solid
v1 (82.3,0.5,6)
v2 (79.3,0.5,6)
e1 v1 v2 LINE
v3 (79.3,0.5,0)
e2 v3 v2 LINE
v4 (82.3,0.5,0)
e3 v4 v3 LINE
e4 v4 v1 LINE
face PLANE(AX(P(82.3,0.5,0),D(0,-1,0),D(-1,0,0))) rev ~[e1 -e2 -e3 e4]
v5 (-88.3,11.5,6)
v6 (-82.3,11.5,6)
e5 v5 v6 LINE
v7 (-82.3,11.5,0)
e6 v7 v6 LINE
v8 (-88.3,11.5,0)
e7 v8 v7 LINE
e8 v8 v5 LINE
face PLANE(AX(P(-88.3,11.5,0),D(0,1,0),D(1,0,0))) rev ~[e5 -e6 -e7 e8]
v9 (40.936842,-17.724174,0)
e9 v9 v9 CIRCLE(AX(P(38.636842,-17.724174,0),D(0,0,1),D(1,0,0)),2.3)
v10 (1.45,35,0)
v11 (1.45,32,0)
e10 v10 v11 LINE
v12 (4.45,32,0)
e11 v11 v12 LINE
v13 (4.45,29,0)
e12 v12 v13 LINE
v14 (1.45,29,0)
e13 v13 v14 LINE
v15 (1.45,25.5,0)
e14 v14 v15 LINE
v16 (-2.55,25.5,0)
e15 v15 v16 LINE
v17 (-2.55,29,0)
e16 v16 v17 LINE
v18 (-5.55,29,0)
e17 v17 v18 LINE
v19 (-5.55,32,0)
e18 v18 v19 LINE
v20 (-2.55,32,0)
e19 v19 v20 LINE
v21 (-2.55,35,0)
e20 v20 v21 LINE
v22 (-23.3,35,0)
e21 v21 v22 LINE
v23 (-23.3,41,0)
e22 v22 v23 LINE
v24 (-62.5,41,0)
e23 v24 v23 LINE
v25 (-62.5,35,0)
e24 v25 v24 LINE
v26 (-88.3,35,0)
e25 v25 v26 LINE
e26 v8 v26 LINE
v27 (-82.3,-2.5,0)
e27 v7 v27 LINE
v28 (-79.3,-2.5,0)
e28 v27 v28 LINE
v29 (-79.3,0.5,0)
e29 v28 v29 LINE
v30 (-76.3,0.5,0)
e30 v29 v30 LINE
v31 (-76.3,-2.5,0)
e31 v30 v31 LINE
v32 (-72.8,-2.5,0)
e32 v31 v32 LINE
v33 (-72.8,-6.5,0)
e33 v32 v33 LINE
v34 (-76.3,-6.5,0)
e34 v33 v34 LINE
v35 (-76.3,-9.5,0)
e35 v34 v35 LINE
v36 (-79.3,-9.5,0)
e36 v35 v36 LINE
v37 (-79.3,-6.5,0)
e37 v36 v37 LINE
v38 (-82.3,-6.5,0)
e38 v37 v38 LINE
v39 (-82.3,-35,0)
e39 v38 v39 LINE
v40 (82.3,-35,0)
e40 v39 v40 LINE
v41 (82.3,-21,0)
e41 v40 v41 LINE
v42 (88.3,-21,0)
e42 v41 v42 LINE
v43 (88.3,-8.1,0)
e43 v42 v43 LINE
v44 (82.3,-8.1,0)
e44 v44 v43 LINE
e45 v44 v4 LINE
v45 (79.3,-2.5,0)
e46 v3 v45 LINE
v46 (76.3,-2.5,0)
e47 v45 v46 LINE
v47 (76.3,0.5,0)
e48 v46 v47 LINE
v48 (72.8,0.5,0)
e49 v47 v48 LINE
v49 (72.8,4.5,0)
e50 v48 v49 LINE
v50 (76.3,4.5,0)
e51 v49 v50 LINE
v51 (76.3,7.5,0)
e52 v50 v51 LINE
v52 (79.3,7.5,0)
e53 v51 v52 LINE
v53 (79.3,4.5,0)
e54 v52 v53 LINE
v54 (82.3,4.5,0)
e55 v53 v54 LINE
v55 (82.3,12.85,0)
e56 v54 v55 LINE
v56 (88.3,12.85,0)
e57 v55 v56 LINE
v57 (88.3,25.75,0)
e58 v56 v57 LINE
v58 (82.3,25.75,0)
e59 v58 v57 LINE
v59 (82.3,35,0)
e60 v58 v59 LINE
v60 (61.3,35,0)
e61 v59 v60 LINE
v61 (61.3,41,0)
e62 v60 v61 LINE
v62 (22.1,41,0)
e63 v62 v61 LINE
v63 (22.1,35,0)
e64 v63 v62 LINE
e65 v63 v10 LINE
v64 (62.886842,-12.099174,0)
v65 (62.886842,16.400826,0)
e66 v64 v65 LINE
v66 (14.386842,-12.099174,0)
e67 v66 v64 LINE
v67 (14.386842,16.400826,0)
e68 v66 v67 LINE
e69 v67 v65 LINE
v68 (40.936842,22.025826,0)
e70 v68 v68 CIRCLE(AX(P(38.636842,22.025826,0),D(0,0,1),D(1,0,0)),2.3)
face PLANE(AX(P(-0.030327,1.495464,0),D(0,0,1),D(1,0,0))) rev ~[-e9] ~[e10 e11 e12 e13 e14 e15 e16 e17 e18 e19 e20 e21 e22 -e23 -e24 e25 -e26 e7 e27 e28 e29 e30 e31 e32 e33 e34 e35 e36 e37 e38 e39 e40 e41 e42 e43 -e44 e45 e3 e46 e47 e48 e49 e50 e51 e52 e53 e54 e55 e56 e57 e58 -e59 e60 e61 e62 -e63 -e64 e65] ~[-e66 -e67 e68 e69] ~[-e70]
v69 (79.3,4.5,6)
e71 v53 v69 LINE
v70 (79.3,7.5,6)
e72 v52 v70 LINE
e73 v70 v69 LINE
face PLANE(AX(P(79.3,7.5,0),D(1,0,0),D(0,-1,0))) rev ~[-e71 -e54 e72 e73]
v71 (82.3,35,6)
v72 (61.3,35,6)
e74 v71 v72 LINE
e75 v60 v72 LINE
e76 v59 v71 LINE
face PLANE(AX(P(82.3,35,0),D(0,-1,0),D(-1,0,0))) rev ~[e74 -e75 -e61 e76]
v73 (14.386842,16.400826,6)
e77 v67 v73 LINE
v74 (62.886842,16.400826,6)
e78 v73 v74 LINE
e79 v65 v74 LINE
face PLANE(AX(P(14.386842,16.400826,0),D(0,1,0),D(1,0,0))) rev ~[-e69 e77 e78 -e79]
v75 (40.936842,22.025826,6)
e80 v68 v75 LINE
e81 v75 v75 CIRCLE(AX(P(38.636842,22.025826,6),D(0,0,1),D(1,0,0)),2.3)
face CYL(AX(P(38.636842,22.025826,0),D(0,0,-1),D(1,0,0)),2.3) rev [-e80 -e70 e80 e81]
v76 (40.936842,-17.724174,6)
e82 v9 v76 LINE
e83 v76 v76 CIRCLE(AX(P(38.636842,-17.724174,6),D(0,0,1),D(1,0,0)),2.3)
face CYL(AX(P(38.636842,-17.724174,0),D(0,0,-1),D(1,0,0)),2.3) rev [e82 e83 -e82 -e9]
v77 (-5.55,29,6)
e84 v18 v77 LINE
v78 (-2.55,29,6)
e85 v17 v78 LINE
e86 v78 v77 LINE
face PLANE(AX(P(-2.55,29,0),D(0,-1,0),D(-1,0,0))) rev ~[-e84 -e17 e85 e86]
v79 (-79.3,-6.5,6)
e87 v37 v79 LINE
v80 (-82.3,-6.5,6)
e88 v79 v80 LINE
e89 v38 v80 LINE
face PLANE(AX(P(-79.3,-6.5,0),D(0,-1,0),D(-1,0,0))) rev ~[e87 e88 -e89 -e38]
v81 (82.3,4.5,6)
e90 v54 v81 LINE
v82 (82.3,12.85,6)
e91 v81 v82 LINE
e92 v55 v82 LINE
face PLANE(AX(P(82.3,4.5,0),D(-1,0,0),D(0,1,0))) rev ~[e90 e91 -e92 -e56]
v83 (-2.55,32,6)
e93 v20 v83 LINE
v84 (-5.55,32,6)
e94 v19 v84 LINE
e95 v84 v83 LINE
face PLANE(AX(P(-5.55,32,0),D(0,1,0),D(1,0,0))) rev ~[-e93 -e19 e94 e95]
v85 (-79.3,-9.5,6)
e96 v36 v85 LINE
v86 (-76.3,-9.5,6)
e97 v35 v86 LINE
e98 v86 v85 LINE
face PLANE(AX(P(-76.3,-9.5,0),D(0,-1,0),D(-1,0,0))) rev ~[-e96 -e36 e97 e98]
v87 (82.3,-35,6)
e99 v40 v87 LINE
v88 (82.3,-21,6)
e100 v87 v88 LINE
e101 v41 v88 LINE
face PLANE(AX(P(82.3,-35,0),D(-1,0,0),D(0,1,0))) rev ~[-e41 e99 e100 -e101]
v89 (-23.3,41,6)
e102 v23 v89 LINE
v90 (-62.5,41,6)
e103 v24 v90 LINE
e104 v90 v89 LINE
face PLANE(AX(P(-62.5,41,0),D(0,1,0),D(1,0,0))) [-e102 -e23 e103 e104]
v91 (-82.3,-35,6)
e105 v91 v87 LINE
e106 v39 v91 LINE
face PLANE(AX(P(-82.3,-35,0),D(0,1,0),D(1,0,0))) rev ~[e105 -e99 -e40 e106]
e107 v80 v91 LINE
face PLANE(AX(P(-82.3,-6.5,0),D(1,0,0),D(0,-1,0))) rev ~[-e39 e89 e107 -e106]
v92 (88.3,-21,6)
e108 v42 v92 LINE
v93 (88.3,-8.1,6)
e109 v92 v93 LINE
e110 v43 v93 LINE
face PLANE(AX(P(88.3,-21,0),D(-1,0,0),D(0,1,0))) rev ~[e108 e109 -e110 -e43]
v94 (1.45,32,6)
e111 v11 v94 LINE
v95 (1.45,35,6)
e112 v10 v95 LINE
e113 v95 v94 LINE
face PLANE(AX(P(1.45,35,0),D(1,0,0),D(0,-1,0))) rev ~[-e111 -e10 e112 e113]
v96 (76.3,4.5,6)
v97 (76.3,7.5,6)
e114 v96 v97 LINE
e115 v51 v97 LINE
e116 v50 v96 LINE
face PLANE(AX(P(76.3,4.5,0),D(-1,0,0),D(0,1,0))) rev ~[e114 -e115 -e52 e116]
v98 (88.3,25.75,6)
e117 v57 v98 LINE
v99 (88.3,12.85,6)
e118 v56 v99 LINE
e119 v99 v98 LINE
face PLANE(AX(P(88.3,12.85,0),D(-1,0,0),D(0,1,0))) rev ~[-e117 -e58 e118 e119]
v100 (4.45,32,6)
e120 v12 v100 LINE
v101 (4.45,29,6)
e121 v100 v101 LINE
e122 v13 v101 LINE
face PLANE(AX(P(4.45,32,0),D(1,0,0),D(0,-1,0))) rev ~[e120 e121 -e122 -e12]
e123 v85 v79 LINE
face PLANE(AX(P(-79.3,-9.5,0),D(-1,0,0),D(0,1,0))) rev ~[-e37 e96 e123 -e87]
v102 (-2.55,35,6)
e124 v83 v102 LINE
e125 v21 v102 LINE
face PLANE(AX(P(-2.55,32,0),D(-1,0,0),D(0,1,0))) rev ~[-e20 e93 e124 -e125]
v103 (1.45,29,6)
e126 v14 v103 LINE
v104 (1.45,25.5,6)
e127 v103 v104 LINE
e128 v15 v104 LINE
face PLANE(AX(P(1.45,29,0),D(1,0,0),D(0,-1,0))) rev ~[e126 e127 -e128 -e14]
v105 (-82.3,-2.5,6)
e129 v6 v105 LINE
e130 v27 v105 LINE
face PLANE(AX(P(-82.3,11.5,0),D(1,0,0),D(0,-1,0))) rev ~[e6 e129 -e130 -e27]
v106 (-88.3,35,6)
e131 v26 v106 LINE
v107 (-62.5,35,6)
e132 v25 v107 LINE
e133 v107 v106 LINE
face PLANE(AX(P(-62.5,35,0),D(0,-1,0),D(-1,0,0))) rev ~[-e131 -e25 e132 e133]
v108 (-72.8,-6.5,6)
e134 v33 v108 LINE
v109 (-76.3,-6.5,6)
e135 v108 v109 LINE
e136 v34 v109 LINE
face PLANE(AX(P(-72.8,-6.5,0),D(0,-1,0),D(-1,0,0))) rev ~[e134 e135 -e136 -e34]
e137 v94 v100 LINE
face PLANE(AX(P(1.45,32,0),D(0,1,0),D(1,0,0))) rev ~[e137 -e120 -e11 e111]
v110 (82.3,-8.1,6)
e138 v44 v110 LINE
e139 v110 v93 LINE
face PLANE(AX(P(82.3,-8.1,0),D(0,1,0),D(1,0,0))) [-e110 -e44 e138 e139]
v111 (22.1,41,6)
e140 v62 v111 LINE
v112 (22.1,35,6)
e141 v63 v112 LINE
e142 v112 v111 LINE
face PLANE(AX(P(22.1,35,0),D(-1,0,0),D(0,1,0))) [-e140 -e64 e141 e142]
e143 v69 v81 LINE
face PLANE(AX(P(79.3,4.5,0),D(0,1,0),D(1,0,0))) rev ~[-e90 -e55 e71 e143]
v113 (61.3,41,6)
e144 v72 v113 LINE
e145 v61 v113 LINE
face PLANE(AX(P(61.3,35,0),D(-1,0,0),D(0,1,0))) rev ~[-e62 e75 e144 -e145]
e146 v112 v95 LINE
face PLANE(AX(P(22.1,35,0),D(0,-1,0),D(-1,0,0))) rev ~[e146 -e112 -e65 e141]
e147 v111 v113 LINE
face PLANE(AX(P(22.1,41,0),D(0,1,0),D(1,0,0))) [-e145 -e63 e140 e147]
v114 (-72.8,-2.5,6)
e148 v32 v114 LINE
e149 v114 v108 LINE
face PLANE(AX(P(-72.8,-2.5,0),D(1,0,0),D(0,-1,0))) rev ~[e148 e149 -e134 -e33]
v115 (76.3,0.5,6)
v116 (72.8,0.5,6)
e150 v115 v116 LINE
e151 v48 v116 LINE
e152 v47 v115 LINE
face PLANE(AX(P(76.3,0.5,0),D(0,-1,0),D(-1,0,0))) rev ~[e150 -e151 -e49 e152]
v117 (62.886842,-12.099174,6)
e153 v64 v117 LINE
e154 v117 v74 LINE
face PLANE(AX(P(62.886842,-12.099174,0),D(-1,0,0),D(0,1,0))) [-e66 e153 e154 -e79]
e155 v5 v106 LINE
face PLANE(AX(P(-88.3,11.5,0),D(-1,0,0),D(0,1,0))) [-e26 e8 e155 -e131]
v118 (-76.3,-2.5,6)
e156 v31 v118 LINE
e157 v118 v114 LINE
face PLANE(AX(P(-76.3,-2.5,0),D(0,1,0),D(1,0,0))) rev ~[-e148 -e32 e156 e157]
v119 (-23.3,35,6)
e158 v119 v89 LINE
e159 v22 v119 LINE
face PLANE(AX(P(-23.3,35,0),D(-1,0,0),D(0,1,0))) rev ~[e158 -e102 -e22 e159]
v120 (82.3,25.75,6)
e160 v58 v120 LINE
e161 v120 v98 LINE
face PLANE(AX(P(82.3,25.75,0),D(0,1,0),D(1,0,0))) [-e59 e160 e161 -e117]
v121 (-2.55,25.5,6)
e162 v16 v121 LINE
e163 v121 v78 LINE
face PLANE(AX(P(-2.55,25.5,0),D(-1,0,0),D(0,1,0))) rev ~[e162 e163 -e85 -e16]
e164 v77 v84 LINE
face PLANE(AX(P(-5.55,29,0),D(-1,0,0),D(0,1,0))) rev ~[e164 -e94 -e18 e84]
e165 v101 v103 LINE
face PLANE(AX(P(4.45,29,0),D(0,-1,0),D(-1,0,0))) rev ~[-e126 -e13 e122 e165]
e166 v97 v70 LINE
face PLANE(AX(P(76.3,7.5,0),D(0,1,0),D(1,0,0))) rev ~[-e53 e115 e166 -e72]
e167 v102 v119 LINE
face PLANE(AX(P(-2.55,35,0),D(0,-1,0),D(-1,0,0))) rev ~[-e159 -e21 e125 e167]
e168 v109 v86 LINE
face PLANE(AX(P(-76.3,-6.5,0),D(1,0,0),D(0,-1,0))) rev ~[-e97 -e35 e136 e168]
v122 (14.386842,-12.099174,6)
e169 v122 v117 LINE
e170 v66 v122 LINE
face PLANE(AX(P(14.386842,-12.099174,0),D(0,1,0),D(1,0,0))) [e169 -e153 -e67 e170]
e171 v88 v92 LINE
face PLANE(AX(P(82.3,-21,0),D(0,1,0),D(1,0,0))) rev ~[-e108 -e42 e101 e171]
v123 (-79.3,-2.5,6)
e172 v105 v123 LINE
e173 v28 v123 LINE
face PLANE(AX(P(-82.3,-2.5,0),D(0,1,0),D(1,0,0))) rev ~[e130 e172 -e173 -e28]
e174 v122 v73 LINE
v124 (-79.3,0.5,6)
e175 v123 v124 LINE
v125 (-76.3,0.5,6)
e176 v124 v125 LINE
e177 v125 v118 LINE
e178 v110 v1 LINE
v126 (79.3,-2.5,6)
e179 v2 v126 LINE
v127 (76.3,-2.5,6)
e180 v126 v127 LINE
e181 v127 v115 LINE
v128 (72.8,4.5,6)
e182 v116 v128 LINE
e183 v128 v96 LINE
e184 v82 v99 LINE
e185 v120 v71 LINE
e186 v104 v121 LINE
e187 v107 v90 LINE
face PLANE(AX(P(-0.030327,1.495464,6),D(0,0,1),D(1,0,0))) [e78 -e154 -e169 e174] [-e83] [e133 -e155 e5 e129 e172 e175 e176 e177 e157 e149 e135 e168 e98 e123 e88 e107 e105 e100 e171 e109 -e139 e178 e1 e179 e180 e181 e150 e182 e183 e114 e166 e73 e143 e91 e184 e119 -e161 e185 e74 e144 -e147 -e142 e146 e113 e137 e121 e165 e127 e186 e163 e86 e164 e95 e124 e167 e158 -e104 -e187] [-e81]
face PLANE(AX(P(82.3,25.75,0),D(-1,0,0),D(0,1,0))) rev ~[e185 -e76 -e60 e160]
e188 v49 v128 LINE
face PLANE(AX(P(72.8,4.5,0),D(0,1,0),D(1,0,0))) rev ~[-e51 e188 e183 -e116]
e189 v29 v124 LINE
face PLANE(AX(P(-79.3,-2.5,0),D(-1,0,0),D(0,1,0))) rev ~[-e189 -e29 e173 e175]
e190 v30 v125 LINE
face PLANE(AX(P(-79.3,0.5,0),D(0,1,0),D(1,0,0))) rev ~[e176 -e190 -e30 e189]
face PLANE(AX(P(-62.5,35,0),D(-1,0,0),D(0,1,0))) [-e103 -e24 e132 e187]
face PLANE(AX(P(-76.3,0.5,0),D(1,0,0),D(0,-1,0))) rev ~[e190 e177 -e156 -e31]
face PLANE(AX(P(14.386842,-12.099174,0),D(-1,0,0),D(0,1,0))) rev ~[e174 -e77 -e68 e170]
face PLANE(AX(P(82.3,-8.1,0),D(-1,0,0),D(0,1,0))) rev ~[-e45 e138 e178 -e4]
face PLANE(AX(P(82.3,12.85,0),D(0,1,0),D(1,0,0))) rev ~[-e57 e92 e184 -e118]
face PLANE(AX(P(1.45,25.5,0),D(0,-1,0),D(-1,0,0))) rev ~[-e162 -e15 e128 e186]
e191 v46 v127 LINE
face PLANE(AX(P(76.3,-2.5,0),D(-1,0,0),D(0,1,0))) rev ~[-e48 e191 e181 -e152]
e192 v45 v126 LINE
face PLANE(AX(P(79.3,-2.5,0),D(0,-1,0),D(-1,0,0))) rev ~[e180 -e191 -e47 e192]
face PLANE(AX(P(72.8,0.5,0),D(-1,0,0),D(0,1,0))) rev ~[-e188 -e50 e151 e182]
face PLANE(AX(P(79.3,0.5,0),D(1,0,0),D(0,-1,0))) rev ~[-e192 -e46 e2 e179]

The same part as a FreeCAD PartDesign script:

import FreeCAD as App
import Part
import Sketcher

V = App.Vector
Q = App.Units.Quantity


def add_polygon(sketch, points):
    """Adds a closed chain of lines whose ends are joined by coincident constraints."""
    first, n = sketch.GeometryCount, len(points)
    for a, b in zip(points, points[1:] + points[:1]):
        sketch.addGeometry(Part.LineSegment(App.Vector(*a, 0), App.Vector(*b, 0)), False)
    for i in range(n):
        sketch.addConstraint(Sketcher.Constraint("Coincident", first + i, 2, first + (i + 1) % n, 1))

doc = App.newDocument("Part")
body = doc.addObject("PartDesign::Body", "Body")

sketch1 = body.newObject("Sketcher::SketchObject", "Sketch")
sketch1.AttachmentSupport = (doc.getObject("XY_Plane"), [""])
sketch1.MapMode = "FlatFace"
add_polygon(sketch1, [(-82.3, 11.5), (-82.3, -2.5), (-79.3, -2.5), (-79.3, 0.5), (-76.3, 0.5), (-76.3, -2.5), (-72.8, -2.5), (-72.8, -6.5), (-76.3, -6.5), (-76.3, -9.5), (-79.3, -9.5), (-79.3, -6.5), (-82.3, -6.5), (-82.3, -35), (82.3, -35), (82.3, -21), (88.3, -21), (88.3, -8.1), (82.3, -8.1), (82.3, 0.5), (79.3, 0.5), (79.3, -2.5), (76.3, -2.5), (76.3, 0.5), (72.8, 0.5), (72.8, 4.5), (76.3, 4.5), (76.3, 7.5), (79.3, 7.5), (79.3, 4.5), (82.3, 4.5), (82.3, 12.8), (88.3, 12.8), (88.3, 25.8), (82.3, 25.8), (82.3, 35), (61.3, 35), (61.3, 41), (22.1, 41), (22.1, 35), (1.4, 35), (1.4, 32), (4.5, 32), (4.5, 29), (1.4, 29), (1.4, 25.5), (-2.5, 25.5), (-2.5, 29), (-5.5, 29), (-5.5, 32), (-2.5, 32), (-2.5, 35), (-23.3, 35), (-23.3, 41), (-62.5, 41), (-62.5, 35), (-88.3, 35), (-88.3, 11.5)])
sketch1.addGeometry(Part.Circle(V(38.6, -17.7, 0), V(0, 0, 1), 2.3), False)
add_polygon(sketch1, [(62.9, -12.1), (14.4, -12.1), (14.4, 16.4), (62.9, 16.4)])
sketch1.addGeometry(Part.Circle(V(38.6, 22, 0), V(0, 0, 1), 2.3), False)
sketch1.addConstraint([
    Sketcher.Constraint("Vertical", 0),
    Sketcher.Constraint("Horizontal", 1),
    Sketcher.Constraint("Vertical", 2),
    Sketcher.Constraint("Horizontal", 3),
    Sketcher.Constraint("Vertical", 4),
    Sketcher.Constraint("Horizontal", 5),
    Sketcher.Constraint("Vertical", 6),
    Sketcher.Constraint("Horizontal", 7),
    Sketcher.Constraint("Vertical", 8),
    Sketcher.Constraint("Horizontal", 9),
    Sketcher.Constraint("Vertical", 10),
    Sketcher.Constraint("Horizontal", 11),
    Sketcher.Constraint("Vertical", 12),
    Sketcher.Constraint("Horizontal", 13),
    Sketcher.Constraint("Vertical", 14),
    Sketcher.Constraint("Horizontal", 15),
    Sketcher.Constraint("Vertical", 16),
    Sketcher.Constraint("Horizontal", 17),
    Sketcher.Constraint("Vertical", 18),
    Sketcher.Constraint("Horizontal", 19),
    Sketcher.Constraint("Vertical", 20),
    Sketcher.Constraint("Horizontal", 21),
    Sketcher.Constraint("Vertical", 22),
    Sketcher.Constraint("Horizontal", 23),
    Sketcher.Constraint("Vertical", 24),
    Sketcher.Constraint("Horizontal", 25),
    Sketcher.Constraint("Vertical", 26),
    Sketcher.Constraint("Horizontal", 27),
    Sketcher.Constraint("Vertical", 28),
    Sketcher.Constraint("Horizontal", 29),
    Sketcher.Constraint("Vertical", 30),
    Sketcher.Constraint("Horizontal", 31),
    Sketcher.Constraint("Vertical", 32),
    Sketcher.Constraint("Horizontal", 33),
    Sketcher.Constraint("Vertical", 34),
    Sketcher.Constraint("Horizontal", 35),
    Sketcher.Constraint("Vertical", 36),
    Sketcher.Constraint("Horizontal", 37),
    Sketcher.Constraint("Vertical", 38),
    Sketcher.Constraint("Horizontal", 39),
    Sketcher.Constraint("Vertical", 40),
    Sketcher.Constraint("Horizontal", 41),
    Sketcher.Constraint("Vertical", 42),
    Sketcher.Constraint("Horizontal", 43),
    Sketcher.Constraint("Vertical", 44),
    Sketcher.Constraint("Horizontal", 45),
    Sketcher.Constraint("Vertical", 46),
    Sketcher.Constraint("Horizontal", 47),
    Sketcher.Constraint("Vertical", 48),
    Sketcher.Constraint("Horizontal", 49),
    Sketcher.Constraint("Vertical", 50),
    Sketcher.Constraint("Horizontal", 51),
    Sketcher.Constraint("Vertical", 52),
    Sketcher.Constraint("Horizontal", 53),
    Sketcher.Constraint("Vertical", 54),
    Sketcher.Constraint("Horizontal", 55),
    Sketcher.Constraint("Vertical", 56),
    Sketcher.Constraint("Horizontal", 57),
    Sketcher.Constraint("Horizontal", 59),
    Sketcher.Constraint("Vertical", 60),
    Sketcher.Constraint("Horizontal", 61),
    Sketcher.Constraint("Vertical", 62),
    Sketcher.Constraint("Equal", 58, 63),
    Sketcher.Constraint("Symmetric", 12, 2, 34, 2, -1, 1),
    Sketcher.Constraint("Symmetric", 2, 2, 19, 2, -2),
    Sketcher.Constraint("Symmetric", 4, 2, 21, 2, -2),
    Sketcher.Constraint("Horizontal", 1, 2, 4, 2),
    Sketcher.Constraint("Horizontal", 7, 2, 10, 2),
    Sketcher.Constraint("Horizontal", 19, 2, 22, 2),
    Sketcher.Constraint("Horizontal", 25, 2, 28, 2),
    Sketcher.Constraint("Horizontal", 35, 2, 38, 2),
    Sketcher.Constraint("Horizontal", 43, 2, 46, 2),
    Sketcher.Constraint("Horizontal", 41, 2, 48, 2),
    Sketcher.Constraint("Horizontal", 39, 2, 50, 2),
    Sketcher.Constraint("Horizontal", 37, 2, 52, 2),
    Sketcher.Constraint("Horizontal", 51, 2, 54, 2),
    Sketcher.Constraint("Vertical", 58, 3, 63, 3),
    Sketcher.Constraint("Vertical", 4, 2, 7, 2),
    Sketcher.Constraint("Vertical", 2, 2, 9, 2),
    Sketcher.Constraint("Vertical", 0, 2, 11, 2),
    Sketcher.Constraint("Vertical", 14, 2, 17, 2),
    Sketcher.Constraint("Vertical", 22, 2, 25, 2),
    Sketcher.Constraint("Vertical", 20, 2, 27, 2),
    Sketcher.Constraint("Vertical", 18, 2, 29, 2),
    Sketcher.Constraint("Vertical", 16, 2, 31, 2),
    Sketcher.Constraint("Vertical", 30, 2, 33, 2),
    Sketcher.Constraint("Vertical", 40, 2, 43, 2),
    Sketcher.Constraint("Vertical", 46, 2, 49, 2),
    Sketcher.Constraint("Equal", 1, 3),
    Sketcher.Constraint("Equal", 7, 23),
    Sketcher.Constraint("Equal", 29, 41),
    Sketcher.Constraint("Equal", 43, 47),
    Sketcher.Constraint("Equal", 37, 53),
    Sketcher.Constraint("Equal", 33, 57),
    Sketcher.Constraint("Equal", 49, 2),
    Sketcher.Constraint("Equal", 45, 6),
    Sketcher.Constraint("Equal", 4, 8),
    Sketcher.Constraint("Equal", 0, 14),
    Sketcher.Constraint("Equal", 6, 24),
    Sketcher.Constraint("Equal", 22, 26),
    Sketcher.Constraint("Equal", 16, 32),
    Sketcher.Constraint("Equal", 57, 36),
    Sketcher.Constraint("Equal", 28, 40),
    Sketcher.Constraint("Equal", 40, 42),
    Sketcher.Constraint("Equal", 25, 44),
    Sketcher.Constraint("Equal", 12, 60),
    Sketcher.Constraint("Diameter", 58, Q("4.6 mm")),
    Sketcher.Constraint("DistanceX", 1, 1, 1, 2, Q("3 mm")),
    Sketcher.Constraint("DistanceX", 15, 1, 15, 2, Q("6 mm")),
    Sketcher.Constraint("DistanceX", 35, 2, 35, 1, Q("21 mm")),
    Sketcher.Constraint("DistanceX", 45, 2, 45, 1, Q("4 mm")),
    Sketcher.Constraint("DistanceY", 0, 2, 0, 1, Q("14 mm")),
    Sketcher.Constraint("DistanceX", 5, 1, 5, 2, Q("3.5 mm")),
    Sketcher.Constraint("DistanceX", 13, 1, 13, 2, Q("164.6 mm")),
    Sketcher.Constraint("DistanceX", 37, 2, 37, 1, Q("39.2 mm")),
    Sketcher.Constraint("DistanceX", 55, 2, 55, 1, Q("25.8 mm")),
    Sketcher.Constraint("DistanceX", 59, 2, 59, 1, Q("48.5 mm")),
    Sketcher.Constraint("DistanceY", 12, 2, 12, 1, Q("28.5 mm")),
    Sketcher.Constraint("DistanceY", 16, 1, 16, 2, Q("12.9 mm")),
    Sketcher.Constraint("DistanceY", 56, 2, 56, 1, Q("23.5 mm")),
    Sketcher.Constraint("DistanceX", 39, 2, 39, 1, Q("20.65 mm")),
    Sketcher.Constraint("DistanceY", 30, 1, 30, 2, Q("8.35 mm")),
    Sketcher.Constraint("DistanceX", -1, 1, 58, 3, Q("38.636842 mm")),
    Sketcher.Constraint("DistanceY", 58, 3, -1, 1, Q("17.724174 mm")),
    Sketcher.Constraint("DistanceY", -1, 1, 63, 3, Q("22.025826 mm")),
    Sketcher.Constraint("DistanceX", -1, 1, 59, 2, Q("14.386842 mm")),
    Sketcher.Constraint("DistanceY", 59, 2, -1, 1, Q("12.099174 mm")),
])
pad1 = body.newObject("PartDesign::Pad", "Pad")
pad1.Profile = sketch1
pad1.Length = 6

doc.recompute()
